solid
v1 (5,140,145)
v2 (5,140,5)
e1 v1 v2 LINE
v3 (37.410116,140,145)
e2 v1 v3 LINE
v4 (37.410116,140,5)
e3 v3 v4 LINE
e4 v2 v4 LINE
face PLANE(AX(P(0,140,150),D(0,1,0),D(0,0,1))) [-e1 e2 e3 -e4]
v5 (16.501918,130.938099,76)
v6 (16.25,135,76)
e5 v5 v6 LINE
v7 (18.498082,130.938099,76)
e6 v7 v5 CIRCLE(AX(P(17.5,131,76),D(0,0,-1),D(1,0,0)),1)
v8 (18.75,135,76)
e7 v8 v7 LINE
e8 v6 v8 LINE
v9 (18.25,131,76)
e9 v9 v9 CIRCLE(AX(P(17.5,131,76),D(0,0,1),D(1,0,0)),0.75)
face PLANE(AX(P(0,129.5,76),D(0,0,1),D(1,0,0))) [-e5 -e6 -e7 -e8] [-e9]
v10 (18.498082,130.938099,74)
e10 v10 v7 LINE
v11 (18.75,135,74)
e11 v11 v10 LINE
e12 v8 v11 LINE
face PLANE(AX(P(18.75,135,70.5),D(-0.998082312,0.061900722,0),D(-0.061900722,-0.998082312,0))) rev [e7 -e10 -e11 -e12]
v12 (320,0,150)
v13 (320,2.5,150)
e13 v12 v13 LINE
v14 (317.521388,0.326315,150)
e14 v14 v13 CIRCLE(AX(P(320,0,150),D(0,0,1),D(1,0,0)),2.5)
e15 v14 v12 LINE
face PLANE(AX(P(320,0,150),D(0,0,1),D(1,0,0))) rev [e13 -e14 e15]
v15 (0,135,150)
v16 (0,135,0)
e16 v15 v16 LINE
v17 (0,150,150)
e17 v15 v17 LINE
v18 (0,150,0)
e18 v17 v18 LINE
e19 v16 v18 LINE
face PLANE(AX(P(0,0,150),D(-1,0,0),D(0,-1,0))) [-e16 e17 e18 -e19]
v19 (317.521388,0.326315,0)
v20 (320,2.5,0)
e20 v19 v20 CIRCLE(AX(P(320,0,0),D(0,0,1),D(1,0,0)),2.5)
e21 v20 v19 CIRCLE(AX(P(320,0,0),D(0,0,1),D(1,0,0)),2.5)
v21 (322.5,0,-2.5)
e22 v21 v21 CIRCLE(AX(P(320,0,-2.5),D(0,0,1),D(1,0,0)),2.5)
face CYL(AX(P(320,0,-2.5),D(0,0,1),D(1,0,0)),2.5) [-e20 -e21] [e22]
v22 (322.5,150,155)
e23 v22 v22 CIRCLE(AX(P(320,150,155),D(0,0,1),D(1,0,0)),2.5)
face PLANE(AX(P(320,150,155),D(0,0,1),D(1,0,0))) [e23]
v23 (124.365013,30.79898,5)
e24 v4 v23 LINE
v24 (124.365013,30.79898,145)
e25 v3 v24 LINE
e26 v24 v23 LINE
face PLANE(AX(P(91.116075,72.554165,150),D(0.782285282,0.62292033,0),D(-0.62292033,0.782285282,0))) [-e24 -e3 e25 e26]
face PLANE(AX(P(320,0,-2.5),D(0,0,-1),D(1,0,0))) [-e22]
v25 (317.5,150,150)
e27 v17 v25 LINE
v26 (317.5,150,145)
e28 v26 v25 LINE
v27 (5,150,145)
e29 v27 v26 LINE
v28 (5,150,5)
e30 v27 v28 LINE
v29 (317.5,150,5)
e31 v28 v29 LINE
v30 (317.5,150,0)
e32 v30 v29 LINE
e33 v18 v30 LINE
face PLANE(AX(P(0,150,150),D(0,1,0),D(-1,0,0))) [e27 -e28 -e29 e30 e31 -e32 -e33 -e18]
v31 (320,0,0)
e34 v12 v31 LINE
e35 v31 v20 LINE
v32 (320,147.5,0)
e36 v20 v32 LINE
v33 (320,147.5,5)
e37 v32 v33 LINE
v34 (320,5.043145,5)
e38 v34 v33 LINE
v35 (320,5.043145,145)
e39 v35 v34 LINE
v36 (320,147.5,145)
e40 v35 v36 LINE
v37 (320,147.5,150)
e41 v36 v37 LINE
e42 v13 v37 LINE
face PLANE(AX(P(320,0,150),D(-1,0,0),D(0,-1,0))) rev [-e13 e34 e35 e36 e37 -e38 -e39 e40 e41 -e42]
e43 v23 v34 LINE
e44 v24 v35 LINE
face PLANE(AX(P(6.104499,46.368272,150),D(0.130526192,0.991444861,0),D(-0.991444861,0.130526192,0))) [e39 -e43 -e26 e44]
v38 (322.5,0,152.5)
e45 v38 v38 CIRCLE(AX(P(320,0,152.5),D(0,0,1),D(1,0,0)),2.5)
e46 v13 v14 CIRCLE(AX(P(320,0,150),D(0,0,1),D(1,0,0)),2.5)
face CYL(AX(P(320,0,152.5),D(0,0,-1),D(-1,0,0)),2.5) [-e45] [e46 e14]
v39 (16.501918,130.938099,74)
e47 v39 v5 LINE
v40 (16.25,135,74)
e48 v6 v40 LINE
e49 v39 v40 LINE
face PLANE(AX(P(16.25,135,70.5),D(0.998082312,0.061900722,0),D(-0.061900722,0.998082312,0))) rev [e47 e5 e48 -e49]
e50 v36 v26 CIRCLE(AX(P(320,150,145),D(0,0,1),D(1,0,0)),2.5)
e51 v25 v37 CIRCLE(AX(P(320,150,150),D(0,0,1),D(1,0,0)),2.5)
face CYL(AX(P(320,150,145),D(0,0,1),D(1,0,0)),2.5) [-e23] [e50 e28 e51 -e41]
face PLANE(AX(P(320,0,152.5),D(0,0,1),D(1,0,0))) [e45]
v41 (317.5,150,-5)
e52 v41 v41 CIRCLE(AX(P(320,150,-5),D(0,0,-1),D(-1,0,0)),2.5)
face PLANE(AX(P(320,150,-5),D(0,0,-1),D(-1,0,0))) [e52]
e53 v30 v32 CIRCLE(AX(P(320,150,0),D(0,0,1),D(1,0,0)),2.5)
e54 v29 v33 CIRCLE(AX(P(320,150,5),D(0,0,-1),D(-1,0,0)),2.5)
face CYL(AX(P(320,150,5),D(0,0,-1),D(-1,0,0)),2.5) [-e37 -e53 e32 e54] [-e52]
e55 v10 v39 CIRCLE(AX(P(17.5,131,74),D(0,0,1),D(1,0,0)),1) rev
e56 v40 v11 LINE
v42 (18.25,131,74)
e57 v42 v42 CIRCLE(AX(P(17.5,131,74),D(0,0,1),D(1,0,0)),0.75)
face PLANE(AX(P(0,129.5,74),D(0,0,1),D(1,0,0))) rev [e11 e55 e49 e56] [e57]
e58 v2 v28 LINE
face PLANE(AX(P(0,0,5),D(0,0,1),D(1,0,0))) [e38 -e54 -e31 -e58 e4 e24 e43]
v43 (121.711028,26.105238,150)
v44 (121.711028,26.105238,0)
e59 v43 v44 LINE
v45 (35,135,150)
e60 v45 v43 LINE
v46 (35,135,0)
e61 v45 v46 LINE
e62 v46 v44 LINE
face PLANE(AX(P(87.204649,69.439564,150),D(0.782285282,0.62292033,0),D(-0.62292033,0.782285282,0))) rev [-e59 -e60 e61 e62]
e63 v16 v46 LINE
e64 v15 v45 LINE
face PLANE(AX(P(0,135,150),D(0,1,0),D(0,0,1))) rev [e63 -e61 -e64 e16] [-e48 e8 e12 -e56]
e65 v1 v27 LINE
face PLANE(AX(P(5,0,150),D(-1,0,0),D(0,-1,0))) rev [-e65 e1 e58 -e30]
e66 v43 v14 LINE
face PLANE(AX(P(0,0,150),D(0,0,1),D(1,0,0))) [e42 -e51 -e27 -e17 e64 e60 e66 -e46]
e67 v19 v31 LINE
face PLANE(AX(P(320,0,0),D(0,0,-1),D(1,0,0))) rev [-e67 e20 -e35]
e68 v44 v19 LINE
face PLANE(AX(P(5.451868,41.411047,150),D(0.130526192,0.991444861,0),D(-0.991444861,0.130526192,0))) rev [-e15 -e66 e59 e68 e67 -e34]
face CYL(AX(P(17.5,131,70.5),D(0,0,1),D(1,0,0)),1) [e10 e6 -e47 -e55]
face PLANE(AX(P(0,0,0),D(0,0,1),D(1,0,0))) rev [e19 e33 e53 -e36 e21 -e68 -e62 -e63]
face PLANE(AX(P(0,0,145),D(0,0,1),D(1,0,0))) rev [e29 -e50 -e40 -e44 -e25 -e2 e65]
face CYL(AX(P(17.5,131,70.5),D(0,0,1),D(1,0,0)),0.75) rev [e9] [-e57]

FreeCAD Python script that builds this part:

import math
import FreeCAD as App
import Part
import Sketcher

V = App.Vector
Q = App.Units.Quantity


def faces_at(feature, points):
    """Names of the faces that lie closest to the given points."""
    faces = feature.Shape.Faces
    near = lambda p: min(range(len(faces)), key=lambda i: faces[i].distToShape(Part.Vertex(*p))[0])
    return sorted({f"Face{near(p) + 1}" for p in points})


def add_polygon(sketch, points):
    """Adds a closed chain of lines whose ends are joined by coincident constraints."""
    first, n = sketch.GeometryCount, len(points)
    for a, b in zip(points, points[1:] + points[:1]):
        sketch.addGeometry(Part.LineSegment(App.Vector(*a, 0), App.Vector(*b, 0)), False)
    for i in range(n):
        sketch.addConstraint(Sketcher.Constraint("Coincident", first + i, 2, first + (i + 1) % n, 1))

doc = App.newDocument("Part")
body = doc.addObject("PartDesign::Body", "Body")

sketch1 = body.newObject("Sketcher::SketchObject", "Sketch")
sketch1.AttachmentSupport = (doc.getObject("XY_Plane"), [""])
sketch1.MapMode = "FlatFace"
add_polygon(sketch1, [(0, 150), (0, 135), (35, 135), (122, 26), (320, 0), (320, 150)])
sketch1.addConstraint([
    Sketcher.Constraint("Vertical", 0),
    Sketcher.Constraint("Horizontal", 1),
    Sketcher.Constraint("Vertical", 4),
    Sketcher.Constraint("Horizontal", 5),
    Sketcher.Constraint("PointOnObject", 0, 2, -2),
    Sketcher.Constraint("PointOnObject", 3, 2, -1),
    Sketcher.Constraint("DistanceX", 1, 1, 1, 2, 35.0),
    Sketcher.Constraint("DistanceX", 5, 2, 5, 1, 320.0),
    Sketcher.Constraint("DistanceY", 0, 2, 0, 1, 15.0),
    Sketcher.Constraint("DistanceY", 4, 1, 4, 2, 150.0),
    Sketcher.Constraint("Distance", 3, 200.0),
    Sketcher.Constraint("Angle", 3, Q("-7.5 deg")),
])
pad1 = body.newObject("PartDesign::Pad", "Pad")
pad1.Profile = sketch1
pad1.Length = 150
doc.recompute()

thickness = body.newObject("PartDesign::Thickness", "Thickness")
thickness.Base = (pad1, faces_at(pad1, [(160, 150, 75), (320, 75, 75)]))
thickness.Value = 5
thickness.Reversed = True
thickness.Join = "Intersection"

sketch2 = body.newObject("Sketcher::SketchObject", "Sketch001")
sketch2.AttachmentSupport = (doc.getObject("XY_Plane"), [""])
sketch2.MapMode = "FlatFace"
sketch2.AttachmentOffset = App.Placement(V(0, 0, 150), App.Rotation())
sketch2.addGeometry(Part.Circle(V(320, 150, 0), V(0, 0, 1), 2.5), False)
sketch2.addConstraint([
    Sketcher.Constraint("Diameter", 0, 5.0),
    Sketcher.Constraint("DistanceX", -1, 1, 0, 3, 320.0),
    Sketcher.Constraint("DistanceY", -1, 1, 0, 3, 150.0),
])
pad2 = body.newObject("PartDesign::Pad", "Pad001")
pad2.Profile = sketch2
pad2.Type = "TwoLengths"
pad2.Length = 5
pad2.Length2 = 5

sketch3 = body.newObject("Sketcher::SketchObject", "Sketch002")
sketch3.AttachmentSupport = (doc.getObject("XY_Plane"), [""])
sketch3.MapMode = "FlatFace"
sketch3.addGeometry(Part.Circle(V(320, 150, 0), V(0, 0, 1), 2.5), False)
sketch3.addConstraint([
    Sketcher.Constraint("Diameter", 0, 5.0),
    Sketcher.Constraint("DistanceX", -1, 1, 0, 3, 320.0),
    Sketcher.Constraint("DistanceY", -1, 1, 0, 3, 150.0),
])
pad3 = body.newObject("PartDesign::Pad", "Pad002")
pad3.Profile = sketch3
pad3.Type = "TwoLengths"
pad3.Length = 5
pad3.Length2 = 5
pad3.Reversed = True

sketch4 = body.newObject("Sketcher::SketchObject", "Sketch003")
sketch4.AttachmentSupport = (doc.getObject("XY_Plane"), [""])
sketch4.MapMode = "FlatFace"
sketch4.AttachmentOffset = App.Placement(V(0, 0, 150), App.Rotation())
sketch4.addGeometry(Part.Circle(V(320, 0, 0), V(0, 0, 1), 2.5), False)
sketch4.addConstraint([
    Sketcher.Constraint("PointOnObject", 0, 3, -1),
    Sketcher.Constraint("Diameter", 0, 5.0),
    Sketcher.Constraint("DistanceX", -1, 1, 0, 3, 320.0),
])
pad4 = body.newObject("PartDesign::Pad", "Pad003")
pad4.Profile = sketch4
pad4.Length = 2.5
doc.recompute()

datumplane = body.newObject("PartDesign::Plane", "DatumPlane")
datumplane.AttachmentSupport = (doc.getObject("XY_Plane"), [""])
datumplane.MapMode = "FlatFace"
datumplane.AttachmentOffset = App.Placement(V(0, 0, 75), App.Rotation())
mirrored = body.newObject("PartDesign::Mirrored", "Mirrored")
mirrored.Originals = [pad4]
mirrored.MirrorPlane = (datumplane, [""])
body.Tip = mirrored

sketch5 = body.newObject("Sketcher::SketchObject", "Sketch004")
sketch5.AttachmentSupport = (doc.getObject("XZ_Plane"), [""])
sketch5.MapMode = "FlatFace"
sketch5.AttachmentOffset = App.Placement(V(0, 0, -135), App.Rotation())
add_polygon(sketch5, [(16.2, 76), (16.2, 74), (18.8, 74), (18.8, 76)])
sketch5.addConstraint([
    Sketcher.Constraint("Vertical", 0),
    Sketcher.Constraint("Horizontal", 1),
    Sketcher.Constraint("Vertical", 2),
    Sketcher.Constraint("Horizontal", 3),
    Sketcher.Constraint("DistanceY", 0, 2, 0, 1, 2.0),
    Sketcher.Constraint("DistanceX", 1, 1, 1, 2, 2.5),
    Sketcher.Constraint("DistanceY", -1, 1, 0, 2, 74.0),
    Sketcher.Constraint("DistanceX", -1, 1, 0, 2, 16.25),
])
pad5 = body.newObject("PartDesign::Pad", "Pad004")
pad5.Profile = sketch5
pad5.Length = 5.5

sketch6 = body.newObject("Sketcher::SketchObject", "Sketch005")
sketch6.AttachmentSupport = (doc.getObject("XY_Plane"), [""])
sketch6.MapMode = "FlatFace"
sketch6.AttachmentOffset = App.Placement(V(0, 0, 76), App.Rotation())
sketch6.addGeometry([
    Part.Circle(V(17.5, 131, 0), V(0, 0, 1), 0.8),
    Part.LineSegment(V(16.5, 130.9, 0), V(16.2, 135, 0)),
    Part.LineSegment(V(16.2, 135, 0), V(16.2, 129.5, 0)),
    Part.LineSegment(V(16.2, 129.5, 0), V(18.8, 129.5, 0)),
    Part.LineSegment(V(18.8, 129.5, 0), V(18.8, 135, 0)),
    Part.LineSegment(V(18.8, 135, 0), V(18.5, 130.9, 0)),
    Part.ArcOfCircle(Part.Circle(V(17.5, 131, 0), V(0, 0, 1), 1), math.radians(-176), math.radians(-4)),
], False)
sketch6.addConstraint([
    Sketcher.Constraint("Coincident", 1, 2, 2, 1),
    Sketcher.Constraint("Coincident", 2, 2, 3, 1),
    Sketcher.Constraint("Coincident", 3, 2, 4, 1),
    Sketcher.Constraint("Coincident", 4, 2, 5, 1),
    Sketcher.Constraint("Tangent", 5, 2, 6, 2),
    Sketcher.Constraint("Tangent", 6, 1, 1, 1),
    Sketcher.Constraint("Vertical", 2),
    Sketcher.Constraint("Horizontal", 3),
    Sketcher.Constraint("Vertical", 4),
    Sketcher.Constraint("Coincident", 6, 3, 0, 3),
    Sketcher.Constraint("Horizontal", 1, 2, 4, 2),
    Sketcher.Constraint("Horizontal", 5, 2, 6, 1),
    Sketcher.Constraint("Radius", 6, 1.0),
    Sketcher.Constraint("Diameter", 0, 1.5),
    Sketcher.Constraint("DistanceX", 3, 1, 3, 2, 2.5),
    Sketcher.Constraint("DistanceY", 2, 2, 2, 1, 5.5),
    Sketcher.Constraint("DistanceY", -1, 1, 0, 3, 131.0),
    Sketcher.Constraint("DistanceY", -1, 1, 1, 2, 135.0),
    Sketcher.Constraint("DistanceX", -1, 1, 0, 3, 17.5),
])
pocket1 = body.newObject("PartDesign::Pocket", "Pocket")
pocket1.Profile = sketch6
pocket1.Length = 5.5

doc.recompute()
